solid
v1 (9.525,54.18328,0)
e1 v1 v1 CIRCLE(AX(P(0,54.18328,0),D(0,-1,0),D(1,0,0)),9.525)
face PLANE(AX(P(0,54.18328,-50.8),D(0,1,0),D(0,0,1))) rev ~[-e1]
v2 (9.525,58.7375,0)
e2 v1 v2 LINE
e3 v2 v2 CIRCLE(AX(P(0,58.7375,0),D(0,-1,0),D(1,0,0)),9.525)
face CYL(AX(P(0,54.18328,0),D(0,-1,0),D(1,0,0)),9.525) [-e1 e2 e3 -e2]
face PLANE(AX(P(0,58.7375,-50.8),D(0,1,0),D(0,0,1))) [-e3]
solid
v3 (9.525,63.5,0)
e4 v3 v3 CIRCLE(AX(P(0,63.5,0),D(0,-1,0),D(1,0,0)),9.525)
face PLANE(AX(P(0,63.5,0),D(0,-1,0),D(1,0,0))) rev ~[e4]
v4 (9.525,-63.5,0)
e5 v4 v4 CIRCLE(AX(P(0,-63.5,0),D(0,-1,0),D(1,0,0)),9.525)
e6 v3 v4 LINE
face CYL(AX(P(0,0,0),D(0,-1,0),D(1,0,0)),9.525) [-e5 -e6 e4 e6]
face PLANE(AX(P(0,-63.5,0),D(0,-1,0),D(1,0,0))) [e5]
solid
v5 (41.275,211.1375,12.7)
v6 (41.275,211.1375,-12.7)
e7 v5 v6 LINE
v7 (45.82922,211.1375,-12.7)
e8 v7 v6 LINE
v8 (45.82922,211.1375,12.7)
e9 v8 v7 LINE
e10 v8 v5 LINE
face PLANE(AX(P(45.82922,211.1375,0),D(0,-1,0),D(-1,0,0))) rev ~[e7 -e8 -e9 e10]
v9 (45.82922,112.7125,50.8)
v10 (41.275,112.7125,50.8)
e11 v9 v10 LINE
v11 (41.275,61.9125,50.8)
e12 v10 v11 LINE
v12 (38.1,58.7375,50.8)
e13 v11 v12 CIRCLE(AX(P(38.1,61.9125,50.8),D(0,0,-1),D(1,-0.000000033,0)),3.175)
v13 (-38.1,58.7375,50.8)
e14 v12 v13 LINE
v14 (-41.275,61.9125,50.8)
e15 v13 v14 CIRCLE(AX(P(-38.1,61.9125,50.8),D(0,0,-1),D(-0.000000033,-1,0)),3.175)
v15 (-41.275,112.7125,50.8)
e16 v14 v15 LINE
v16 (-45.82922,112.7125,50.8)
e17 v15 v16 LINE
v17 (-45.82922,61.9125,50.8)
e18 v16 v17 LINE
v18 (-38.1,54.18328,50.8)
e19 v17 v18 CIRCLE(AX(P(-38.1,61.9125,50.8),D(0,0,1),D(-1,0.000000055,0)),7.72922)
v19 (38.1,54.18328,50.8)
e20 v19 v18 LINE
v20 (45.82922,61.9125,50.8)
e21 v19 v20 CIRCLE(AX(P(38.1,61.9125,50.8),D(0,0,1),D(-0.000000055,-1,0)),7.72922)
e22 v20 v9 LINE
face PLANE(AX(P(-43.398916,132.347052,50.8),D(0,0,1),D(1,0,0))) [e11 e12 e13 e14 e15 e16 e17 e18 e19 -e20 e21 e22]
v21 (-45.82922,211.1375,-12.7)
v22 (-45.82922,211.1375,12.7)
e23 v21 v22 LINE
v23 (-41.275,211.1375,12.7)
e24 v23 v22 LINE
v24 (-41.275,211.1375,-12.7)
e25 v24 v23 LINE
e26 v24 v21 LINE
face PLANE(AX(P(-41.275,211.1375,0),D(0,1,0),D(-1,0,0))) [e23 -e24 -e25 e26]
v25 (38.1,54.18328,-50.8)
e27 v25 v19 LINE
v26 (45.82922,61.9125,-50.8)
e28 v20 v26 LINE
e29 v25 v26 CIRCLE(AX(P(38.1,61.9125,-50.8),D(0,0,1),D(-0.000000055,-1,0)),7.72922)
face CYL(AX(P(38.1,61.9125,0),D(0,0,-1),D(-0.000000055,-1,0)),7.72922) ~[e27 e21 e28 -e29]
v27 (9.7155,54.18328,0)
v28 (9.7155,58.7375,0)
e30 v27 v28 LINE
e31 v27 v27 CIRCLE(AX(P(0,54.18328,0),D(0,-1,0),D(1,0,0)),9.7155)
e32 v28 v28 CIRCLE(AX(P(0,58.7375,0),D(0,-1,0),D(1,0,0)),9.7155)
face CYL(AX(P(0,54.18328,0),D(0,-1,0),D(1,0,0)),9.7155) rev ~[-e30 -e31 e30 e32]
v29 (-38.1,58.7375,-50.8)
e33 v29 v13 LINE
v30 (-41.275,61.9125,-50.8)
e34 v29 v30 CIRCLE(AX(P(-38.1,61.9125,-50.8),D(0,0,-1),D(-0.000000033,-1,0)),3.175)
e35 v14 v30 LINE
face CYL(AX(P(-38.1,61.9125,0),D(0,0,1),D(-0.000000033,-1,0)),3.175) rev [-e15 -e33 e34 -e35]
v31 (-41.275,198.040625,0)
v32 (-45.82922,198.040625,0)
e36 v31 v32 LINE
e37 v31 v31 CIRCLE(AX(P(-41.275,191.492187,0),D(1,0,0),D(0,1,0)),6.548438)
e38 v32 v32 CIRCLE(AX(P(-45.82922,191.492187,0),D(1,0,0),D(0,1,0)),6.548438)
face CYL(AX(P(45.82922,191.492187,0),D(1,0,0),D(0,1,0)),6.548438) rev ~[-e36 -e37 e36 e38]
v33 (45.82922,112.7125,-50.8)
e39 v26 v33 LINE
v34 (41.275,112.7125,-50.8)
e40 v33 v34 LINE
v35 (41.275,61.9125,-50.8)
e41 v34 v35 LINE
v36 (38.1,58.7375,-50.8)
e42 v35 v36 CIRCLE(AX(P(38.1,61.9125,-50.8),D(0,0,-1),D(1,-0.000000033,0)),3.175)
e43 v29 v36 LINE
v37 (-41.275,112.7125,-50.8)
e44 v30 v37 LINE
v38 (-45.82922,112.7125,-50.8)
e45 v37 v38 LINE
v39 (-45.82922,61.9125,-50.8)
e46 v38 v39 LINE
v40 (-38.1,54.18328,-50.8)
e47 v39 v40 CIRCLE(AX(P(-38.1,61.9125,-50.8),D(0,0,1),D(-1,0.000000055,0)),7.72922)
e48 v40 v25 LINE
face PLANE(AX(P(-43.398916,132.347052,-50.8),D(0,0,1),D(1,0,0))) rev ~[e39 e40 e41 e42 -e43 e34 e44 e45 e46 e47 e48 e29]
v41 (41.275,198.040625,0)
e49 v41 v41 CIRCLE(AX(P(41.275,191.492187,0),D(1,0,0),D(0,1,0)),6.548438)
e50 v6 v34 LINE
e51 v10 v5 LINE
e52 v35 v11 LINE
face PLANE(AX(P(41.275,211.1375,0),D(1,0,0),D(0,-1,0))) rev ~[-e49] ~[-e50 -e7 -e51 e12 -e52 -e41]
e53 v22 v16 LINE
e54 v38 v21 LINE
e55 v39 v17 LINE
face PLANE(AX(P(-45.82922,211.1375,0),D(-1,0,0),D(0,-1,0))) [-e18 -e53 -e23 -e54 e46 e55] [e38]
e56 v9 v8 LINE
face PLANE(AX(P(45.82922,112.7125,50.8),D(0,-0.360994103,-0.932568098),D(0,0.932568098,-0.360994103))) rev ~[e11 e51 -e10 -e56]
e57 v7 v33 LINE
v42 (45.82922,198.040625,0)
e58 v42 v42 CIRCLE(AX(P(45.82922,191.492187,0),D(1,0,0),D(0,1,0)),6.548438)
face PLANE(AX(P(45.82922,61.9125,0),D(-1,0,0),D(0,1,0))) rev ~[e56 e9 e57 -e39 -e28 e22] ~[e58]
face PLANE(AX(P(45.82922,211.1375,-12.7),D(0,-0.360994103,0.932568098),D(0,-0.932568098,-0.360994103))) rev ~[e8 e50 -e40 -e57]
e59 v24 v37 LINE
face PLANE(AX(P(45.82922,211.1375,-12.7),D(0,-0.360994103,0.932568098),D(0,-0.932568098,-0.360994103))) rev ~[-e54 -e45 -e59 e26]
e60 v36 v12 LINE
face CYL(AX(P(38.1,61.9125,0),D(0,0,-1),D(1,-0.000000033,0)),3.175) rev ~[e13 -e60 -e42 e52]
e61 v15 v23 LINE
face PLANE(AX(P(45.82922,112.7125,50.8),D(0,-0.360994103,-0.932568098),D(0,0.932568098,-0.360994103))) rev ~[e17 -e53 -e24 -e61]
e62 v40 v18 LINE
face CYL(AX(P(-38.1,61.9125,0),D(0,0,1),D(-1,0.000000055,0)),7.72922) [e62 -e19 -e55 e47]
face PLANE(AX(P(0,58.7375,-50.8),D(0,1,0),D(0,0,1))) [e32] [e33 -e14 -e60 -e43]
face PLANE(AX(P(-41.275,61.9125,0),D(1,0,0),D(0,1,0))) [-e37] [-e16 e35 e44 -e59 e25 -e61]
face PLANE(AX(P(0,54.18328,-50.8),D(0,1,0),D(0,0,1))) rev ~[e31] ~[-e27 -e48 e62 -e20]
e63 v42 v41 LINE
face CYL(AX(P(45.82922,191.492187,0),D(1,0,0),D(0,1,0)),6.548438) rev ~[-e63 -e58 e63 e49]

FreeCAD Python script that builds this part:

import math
import FreeCAD as App
import Part
import Sketcher
Q = App.Units.Quantity


def add_polygon(sketch, points):
    """Adds a closed chain of lines whose ends are joined by coincident constraints."""
    first, n = sketch.GeometryCount, len(points)
    for a, b in zip(points, points[1:] + points[:1]):
        sketch.addGeometry(Part.LineSegment(App.Vector(*a, 0), App.Vector(*b, 0)), False)
    for i in range(n):
        sketch.addConstraint(Sketcher.Constraint("Coincident", first + i, 2, first + (i + 1) % n, 1))

doc = App.newDocument("Part")
params = doc.addObject("Spreadsheet::Sheet", "Params")
for row, (alias, value) in enumerate([
    ("sketch1_diameter", "0.75 in"),
    ("pad1_length", "5 in"),
    ("sketch2_height", "4 in"),
    ("pad2_length", "3 in"),
    ("sketch3_radius", "0.125 in"),
    ("pad3_length", "4 in"),
    ("sketch4_diameter", "0.515625 in"),
    ("sketch4_height", "1.5 in"),
    ("sketch4_width", "3.875 in"),
    ("sketch5_diameter", "0.75 in"),
    ("sketch5_diameter2", "0.765 in"),
], start=1):
    params.set(f"A{row}", alias)
    params.set(f"B{row}", "=" + value)
    params.setAlias(f"B{row}", alias)

body = doc.addObject("PartDesign::Body", "Body")

sketch1 = doc.addObject("Sketcher::SketchObject", "Sketch")
body.addObject(sketch1)
sketch1.AttachmentSupport = (doc.XZ_Plane, [""])
sketch1.MapMode = "FlatFace"
sketch1.addGeometry(Part.Circle(App.Vector(0, 0, 0), App.Vector(0, 0, 1), 10), False)
sketch1.addConstraint(Sketcher.Constraint("Coincident", 0, 3, -1, 1))
sketch1.addConstraint(Sketcher.Constraint("Diameter", 0, Q("0.75 in")))
sketch1.setExpression("Constraints[1]", "Params.sketch1_diameter")
pad1 = doc.addObject("PartDesign::Pad", "Pad")
body.addObject(pad1)
pad1.Profile = sketch1
pad1.setExpression("Length", "Params.pad1_length")
pad1.Midplane = True
body2 = doc.addObject("PartDesign::Body", "Body001")
body2.AllowCompound = True

sketch2 = doc.addObject("Sketcher::SketchObject", "Sketch001")
body2.addObject(sketch2)
sketch2.AttachmentSupport = (doc.getObject("YZ_Plane001"), [""])
sketch2.MapMode = "FlatFace"
add_polygon(sketch2, [(54.2, 50.8), (54.2, -50.8), (58.7, -50.8), (58.7, 50.8)])
sketch2.addConstraint(Sketcher.Constraint("Vertical", 0))
sketch2.addConstraint(Sketcher.Constraint("Horizontal", 1))
sketch2.addConstraint(Sketcher.Constraint("Vertical", 2))
sketch2.addConstraint(Sketcher.Constraint("Horizontal", 3))
sketch2.addConstraint(Sketcher.Constraint("DistanceY", 0, 2, 0, 1, Q("4 in")))
sketch2.addConstraint(Sketcher.Constraint("DistanceY", 0, 2, -1, 1, Q("2 in")))
sketch2.addConstraint(Sketcher.Constraint("DistanceX", 1, 1, 1, 2, Q("0.1793 in")))
sketch2.addConstraint(Sketcher.Constraint("DistanceX", -1, 1, 1, 2, Q("2.3125 in")))
sketch2.setExpression("Constraints[8]", "Params.sketch2_height")
pad2 = doc.addObject("PartDesign::Pad", "Pad001")
body2.addObject(pad2)
pad2.Profile = sketch2
pad2.setExpression("Length", "Params.pad2_length")
pad2.Midplane = True

sketch3 = doc.addObject("Sketcher::SketchObject", "Sketch002")
body2.addObject(sketch3)
sketch3.AttachmentSupport = (doc.getObject("XY_Plane001"), [""])
sketch3.MapMode = "FlatFace"
sketch3.addGeometry(Part.LineSegment(App.Vector(41.3, 211.1, 0), App.Vector(41.3, 61.9, 0)), False)
sketch3.addGeometry(Part.ArcOfCircle(Part.Circle(App.Vector(38.1, 61.9, 0), App.Vector(0, 0, 1), 3.2), math.radians(-90), math.radians(0)), False)
sketch3.addGeometry(Part.LineSegment(App.Vector(38.1, 58.7, 0), App.Vector(38.1, 54.2, 0)), False)
sketch3.addGeometry(Part.ArcOfCircle(Part.Circle(App.Vector(38.1, 61.9, 0), App.Vector(0, 0, 1), 7.7), math.radians(-90), math.radians(0)), False)
sketch3.addGeometry(Part.LineSegment(App.Vector(45.8, 61.9, 0), App.Vector(45.8, 211.1, 0)), False)
sketch3.addGeometry(Part.LineSegment(App.Vector(45.8, 211.1, 0), App.Vector(41.3, 211.1, 0)), False)
sketch3.addGeometry(Part.LineSegment(App.Vector(-41.3, 61.9, 0), App.Vector(-41.3, 211.1, 0)), False)
sketch3.addGeometry(Part.LineSegment(App.Vector(-41.3, 211.1, 0), App.Vector(-45.8, 211.1, 0)), False)
sketch3.addGeometry(Part.LineSegment(App.Vector(-45.8, 211.1, 0), App.Vector(-45.8, 61.9, 0)), False)
sketch3.addGeometry(Part.ArcOfCircle(Part.Circle(App.Vector(-38.1, 61.9, 0), App.Vector(0, 0, 1), 7.7), math.radians(180), math.radians(270)), False)
sketch3.addGeometry(Part.LineSegment(App.Vector(-38.1, 54.2, 0), App.Vector(-38.1, 58.7, 0)), False)
sketch3.addGeometry(Part.ArcOfCircle(Part.Circle(App.Vector(-38.1, 61.9, 0), App.Vector(0, 0, 1), 3.2), math.radians(-180), math.radians(-90)), False)
sketch3.addConstraint(Sketcher.Constraint("Tangent", 0, 2, 1, 2))
sketch3.addConstraint(Sketcher.Constraint("Coincident", 1, 1, 2, 1))
sketch3.addConstraint(Sketcher.Constraint("Coincident", 2, 2, 3, 1))
sketch3.addConstraint(Sketcher.Constraint("Tangent", 3, 2, 4, 1))
sketch3.addConstraint(Sketcher.Constraint("Coincident", 4, 2, 5, 1))
sketch3.addConstraint(Sketcher.Constraint("Coincident", 5, 2, 0, 1))
sketch3.addConstraint(Sketcher.Constraint("Coincident", 6, 2, 7, 1))
sketch3.addConstraint(Sketcher.Constraint("Coincident", 7, 2, 8, 1))
sketch3.addConstraint(Sketcher.Constraint("Tangent", 8, 2, 9, 1))
sketch3.addConstraint(Sketcher.Constraint("Coincident", 9, 2, 10, 1))
sketch3.addConstraint(Sketcher.Constraint("Coincident", 10, 2, 11, 2))
sketch3.addConstraint(Sketcher.Constraint("Tangent", 11, 1, 6, 1))
sketch3.addConstraint(Sketcher.Constraint("Vertical", 0))
sketch3.addConstraint(Sketcher.Constraint("Vertical", 2))
sketch3.addConstraint(Sketcher.Constraint("Vertical", 4))
sketch3.addConstraint(Sketcher.Constraint("Horizontal", 5))
sketch3.addConstraint(Sketcher.Constraint("Vertical", 6))
sketch3.addConstraint(Sketcher.Constraint("Horizontal", 7))
sketch3.addConstraint(Sketcher.Constraint("Vertical", 8))
sketch3.addConstraint(Sketcher.Constraint("Vertical", 10))
sketch3.addConstraint(Sketcher.Constraint("Coincident", 3, 3, 1, 3))
sketch3.addConstraint(Sketcher.Constraint("Coincident", 11, 3, 9, 3))
sketch3.addConstraint(Sketcher.Constraint("Equal", 3, 9))
sketch3.addConstraint(Sketcher.Constraint("Equal", 1, 11))
sketch3.addConstraint(Sketcher.Constraint("Symmetric", 1, 3, 9, 3, -2))
sketch3.addConstraint(Sketcher.Constraint("Horizontal", 5, 2, 6, 2))
sketch3.addConstraint(Sketcher.Constraint("Vertical", 3, 3, 1, 1))
sketch3.addConstraint(Sketcher.Constraint("Vertical", 11, 3, 9, 2))
sketch3.addConstraint(Sketcher.Constraint("Radius", 1, Q("0.125 in")))
sketch3.addConstraint(Sketcher.Constraint("DistanceX", 9, 3, 1, 3, Q("3 in")))
sketch3.addConstraint(Sketcher.Constraint("DistanceY", 1, 1, 4, 2, Q("6 in")))
sketch3.addConstraint(Sketcher.Constraint("Radius", 3, Q("0.3043 in")))
sketch3.addConstraint(Sketcher.Constraint("DistanceY", -1, 1, 1, 3, Q("2.4375 in")))
sketch3.setExpression("Constraints[28]", "Params.sketch3_radius")
pad3 = doc.addObject("PartDesign::Pad", "Pad002")
body2.addObject(pad3)
pad3.Profile = sketch3
pad3.setExpression("Length", "Params.pad3_length")
pad3.Midplane = True

sketch4 = doc.addObject("Sketcher::SketchObject", "Sketch003")
body2.addObject(sketch4)
sketch4.AttachmentSupport = (doc.getObject("YZ_Plane001"), [""])
sketch4.MapMode = "FlatFace"
sketch4.AttachmentOffset = App.Placement(App.Vector(0, 0, 1.8043 * 25.4), App.Rotation())
add_polygon(sketch4, [(211, 13), (211, 51), (113, 51)])
add_polygon(sketch4, [(211, -51), (211, -13), (113, -51)])
sketch4.addGeometry(Part.Circle(App.Vector(191, 0, 0), App.Vector(0, 0, 1), 7), False)
sketch4.addConstraint(Sketcher.Constraint("Vertical", 0))
sketch4.addConstraint(Sketcher.Constraint("Horizontal", 1))
sketch4.addConstraint(Sketcher.Constraint("Vertical", 3))
sketch4.addConstraint(Sketcher.Constraint("Horizontal", 5))
sketch4.addConstraint(Sketcher.Constraint("Symmetric", 2, 2, 3, 2, -1))
sketch4.addConstraint(Sketcher.Constraint("Symmetric", 1, 2, 4, 2, -1))
sketch4.addConstraint(Sketcher.Constraint("PointOnObject", 6, 3, -1))
sketch4.addConstraint(Sketcher.Constraint("Diameter", 6, Q("0.515625 in")))
sketch4.addConstraint(Sketcher.Constraint("DistanceY", 0, 1, 0, 2, Q("1.5 in")))
sketch4.addConstraint(Sketcher.Constraint("DistanceY", -1, 1, 0, 2, Q("2 in")))
sketch4.addConstraint(Sketcher.Constraint("DistanceX", 1, 2, 1, 1, Q("3.875 in")))
sketch4.addConstraint(Sketcher.Constraint("DistanceX", -1, 1, 0, 2, Q("8.3125 in")))
sketch4.addConstraint(Sketcher.Constraint("DistanceX", -1, 1, 6, 3, 191.492187))
sketch4.setExpression("Constraints[13]", "Params.sketch4_diameter")
sketch4.setExpression("Constraints[14]", "Params.sketch4_height")
sketch4.setExpression("Constraints[16]", "Params.sketch4_width")
pocket1 = doc.addObject("PartDesign::Pocket", "Pocket")
body2.addObject(pocket1)
pocket1.Profile = sketch4
pocket1.Type = "ThroughAll"

sketch5 = doc.addObject("Sketcher::SketchObject", "Sketch004")
body2.addObject(sketch5)
sketch5.AttachmentSupport = (doc.getObject("XZ_Plane001"), [""])
sketch5.MapMode = "FlatFace"
sketch5.AttachmentOffset = App.Placement(App.Vector(0, 0, -2.1332 * 25.4), App.Rotation())
sketch5.addGeometry(Part.Circle(App.Vector(0, 0, 0), App.Vector(0, 0, 1), 10), False)
sketch5.addGeometry(Part.Circle(App.Vector(0, 0, 0), App.Vector(0, 0, 1), 10), False)
sketch5.addConstraint(Sketcher.Constraint("Coincident", 0, 3, -1, 1))
sketch5.addConstraint(Sketcher.Constraint("Coincident", 1, 3, -1, 1))
sketch5.addConstraint(Sketcher.Constraint("Diameter", 1, Q("0.75 in")))
sketch5.addConstraint(Sketcher.Constraint("Diameter", 0, Q("0.765 in")))
sketch5.setExpression("Constraints[2]", "Params.sketch5_diameter")
sketch5.setExpression("Constraints[3]", "Params.sketch5_diameter2")
pocket2 = doc.addObject("PartDesign::Pocket", "Pocket001")
body2.addObject(pocket2)
pocket2.Profile = sketch5
pocket2.Type = "ThroughAll"

doc.recompute()
